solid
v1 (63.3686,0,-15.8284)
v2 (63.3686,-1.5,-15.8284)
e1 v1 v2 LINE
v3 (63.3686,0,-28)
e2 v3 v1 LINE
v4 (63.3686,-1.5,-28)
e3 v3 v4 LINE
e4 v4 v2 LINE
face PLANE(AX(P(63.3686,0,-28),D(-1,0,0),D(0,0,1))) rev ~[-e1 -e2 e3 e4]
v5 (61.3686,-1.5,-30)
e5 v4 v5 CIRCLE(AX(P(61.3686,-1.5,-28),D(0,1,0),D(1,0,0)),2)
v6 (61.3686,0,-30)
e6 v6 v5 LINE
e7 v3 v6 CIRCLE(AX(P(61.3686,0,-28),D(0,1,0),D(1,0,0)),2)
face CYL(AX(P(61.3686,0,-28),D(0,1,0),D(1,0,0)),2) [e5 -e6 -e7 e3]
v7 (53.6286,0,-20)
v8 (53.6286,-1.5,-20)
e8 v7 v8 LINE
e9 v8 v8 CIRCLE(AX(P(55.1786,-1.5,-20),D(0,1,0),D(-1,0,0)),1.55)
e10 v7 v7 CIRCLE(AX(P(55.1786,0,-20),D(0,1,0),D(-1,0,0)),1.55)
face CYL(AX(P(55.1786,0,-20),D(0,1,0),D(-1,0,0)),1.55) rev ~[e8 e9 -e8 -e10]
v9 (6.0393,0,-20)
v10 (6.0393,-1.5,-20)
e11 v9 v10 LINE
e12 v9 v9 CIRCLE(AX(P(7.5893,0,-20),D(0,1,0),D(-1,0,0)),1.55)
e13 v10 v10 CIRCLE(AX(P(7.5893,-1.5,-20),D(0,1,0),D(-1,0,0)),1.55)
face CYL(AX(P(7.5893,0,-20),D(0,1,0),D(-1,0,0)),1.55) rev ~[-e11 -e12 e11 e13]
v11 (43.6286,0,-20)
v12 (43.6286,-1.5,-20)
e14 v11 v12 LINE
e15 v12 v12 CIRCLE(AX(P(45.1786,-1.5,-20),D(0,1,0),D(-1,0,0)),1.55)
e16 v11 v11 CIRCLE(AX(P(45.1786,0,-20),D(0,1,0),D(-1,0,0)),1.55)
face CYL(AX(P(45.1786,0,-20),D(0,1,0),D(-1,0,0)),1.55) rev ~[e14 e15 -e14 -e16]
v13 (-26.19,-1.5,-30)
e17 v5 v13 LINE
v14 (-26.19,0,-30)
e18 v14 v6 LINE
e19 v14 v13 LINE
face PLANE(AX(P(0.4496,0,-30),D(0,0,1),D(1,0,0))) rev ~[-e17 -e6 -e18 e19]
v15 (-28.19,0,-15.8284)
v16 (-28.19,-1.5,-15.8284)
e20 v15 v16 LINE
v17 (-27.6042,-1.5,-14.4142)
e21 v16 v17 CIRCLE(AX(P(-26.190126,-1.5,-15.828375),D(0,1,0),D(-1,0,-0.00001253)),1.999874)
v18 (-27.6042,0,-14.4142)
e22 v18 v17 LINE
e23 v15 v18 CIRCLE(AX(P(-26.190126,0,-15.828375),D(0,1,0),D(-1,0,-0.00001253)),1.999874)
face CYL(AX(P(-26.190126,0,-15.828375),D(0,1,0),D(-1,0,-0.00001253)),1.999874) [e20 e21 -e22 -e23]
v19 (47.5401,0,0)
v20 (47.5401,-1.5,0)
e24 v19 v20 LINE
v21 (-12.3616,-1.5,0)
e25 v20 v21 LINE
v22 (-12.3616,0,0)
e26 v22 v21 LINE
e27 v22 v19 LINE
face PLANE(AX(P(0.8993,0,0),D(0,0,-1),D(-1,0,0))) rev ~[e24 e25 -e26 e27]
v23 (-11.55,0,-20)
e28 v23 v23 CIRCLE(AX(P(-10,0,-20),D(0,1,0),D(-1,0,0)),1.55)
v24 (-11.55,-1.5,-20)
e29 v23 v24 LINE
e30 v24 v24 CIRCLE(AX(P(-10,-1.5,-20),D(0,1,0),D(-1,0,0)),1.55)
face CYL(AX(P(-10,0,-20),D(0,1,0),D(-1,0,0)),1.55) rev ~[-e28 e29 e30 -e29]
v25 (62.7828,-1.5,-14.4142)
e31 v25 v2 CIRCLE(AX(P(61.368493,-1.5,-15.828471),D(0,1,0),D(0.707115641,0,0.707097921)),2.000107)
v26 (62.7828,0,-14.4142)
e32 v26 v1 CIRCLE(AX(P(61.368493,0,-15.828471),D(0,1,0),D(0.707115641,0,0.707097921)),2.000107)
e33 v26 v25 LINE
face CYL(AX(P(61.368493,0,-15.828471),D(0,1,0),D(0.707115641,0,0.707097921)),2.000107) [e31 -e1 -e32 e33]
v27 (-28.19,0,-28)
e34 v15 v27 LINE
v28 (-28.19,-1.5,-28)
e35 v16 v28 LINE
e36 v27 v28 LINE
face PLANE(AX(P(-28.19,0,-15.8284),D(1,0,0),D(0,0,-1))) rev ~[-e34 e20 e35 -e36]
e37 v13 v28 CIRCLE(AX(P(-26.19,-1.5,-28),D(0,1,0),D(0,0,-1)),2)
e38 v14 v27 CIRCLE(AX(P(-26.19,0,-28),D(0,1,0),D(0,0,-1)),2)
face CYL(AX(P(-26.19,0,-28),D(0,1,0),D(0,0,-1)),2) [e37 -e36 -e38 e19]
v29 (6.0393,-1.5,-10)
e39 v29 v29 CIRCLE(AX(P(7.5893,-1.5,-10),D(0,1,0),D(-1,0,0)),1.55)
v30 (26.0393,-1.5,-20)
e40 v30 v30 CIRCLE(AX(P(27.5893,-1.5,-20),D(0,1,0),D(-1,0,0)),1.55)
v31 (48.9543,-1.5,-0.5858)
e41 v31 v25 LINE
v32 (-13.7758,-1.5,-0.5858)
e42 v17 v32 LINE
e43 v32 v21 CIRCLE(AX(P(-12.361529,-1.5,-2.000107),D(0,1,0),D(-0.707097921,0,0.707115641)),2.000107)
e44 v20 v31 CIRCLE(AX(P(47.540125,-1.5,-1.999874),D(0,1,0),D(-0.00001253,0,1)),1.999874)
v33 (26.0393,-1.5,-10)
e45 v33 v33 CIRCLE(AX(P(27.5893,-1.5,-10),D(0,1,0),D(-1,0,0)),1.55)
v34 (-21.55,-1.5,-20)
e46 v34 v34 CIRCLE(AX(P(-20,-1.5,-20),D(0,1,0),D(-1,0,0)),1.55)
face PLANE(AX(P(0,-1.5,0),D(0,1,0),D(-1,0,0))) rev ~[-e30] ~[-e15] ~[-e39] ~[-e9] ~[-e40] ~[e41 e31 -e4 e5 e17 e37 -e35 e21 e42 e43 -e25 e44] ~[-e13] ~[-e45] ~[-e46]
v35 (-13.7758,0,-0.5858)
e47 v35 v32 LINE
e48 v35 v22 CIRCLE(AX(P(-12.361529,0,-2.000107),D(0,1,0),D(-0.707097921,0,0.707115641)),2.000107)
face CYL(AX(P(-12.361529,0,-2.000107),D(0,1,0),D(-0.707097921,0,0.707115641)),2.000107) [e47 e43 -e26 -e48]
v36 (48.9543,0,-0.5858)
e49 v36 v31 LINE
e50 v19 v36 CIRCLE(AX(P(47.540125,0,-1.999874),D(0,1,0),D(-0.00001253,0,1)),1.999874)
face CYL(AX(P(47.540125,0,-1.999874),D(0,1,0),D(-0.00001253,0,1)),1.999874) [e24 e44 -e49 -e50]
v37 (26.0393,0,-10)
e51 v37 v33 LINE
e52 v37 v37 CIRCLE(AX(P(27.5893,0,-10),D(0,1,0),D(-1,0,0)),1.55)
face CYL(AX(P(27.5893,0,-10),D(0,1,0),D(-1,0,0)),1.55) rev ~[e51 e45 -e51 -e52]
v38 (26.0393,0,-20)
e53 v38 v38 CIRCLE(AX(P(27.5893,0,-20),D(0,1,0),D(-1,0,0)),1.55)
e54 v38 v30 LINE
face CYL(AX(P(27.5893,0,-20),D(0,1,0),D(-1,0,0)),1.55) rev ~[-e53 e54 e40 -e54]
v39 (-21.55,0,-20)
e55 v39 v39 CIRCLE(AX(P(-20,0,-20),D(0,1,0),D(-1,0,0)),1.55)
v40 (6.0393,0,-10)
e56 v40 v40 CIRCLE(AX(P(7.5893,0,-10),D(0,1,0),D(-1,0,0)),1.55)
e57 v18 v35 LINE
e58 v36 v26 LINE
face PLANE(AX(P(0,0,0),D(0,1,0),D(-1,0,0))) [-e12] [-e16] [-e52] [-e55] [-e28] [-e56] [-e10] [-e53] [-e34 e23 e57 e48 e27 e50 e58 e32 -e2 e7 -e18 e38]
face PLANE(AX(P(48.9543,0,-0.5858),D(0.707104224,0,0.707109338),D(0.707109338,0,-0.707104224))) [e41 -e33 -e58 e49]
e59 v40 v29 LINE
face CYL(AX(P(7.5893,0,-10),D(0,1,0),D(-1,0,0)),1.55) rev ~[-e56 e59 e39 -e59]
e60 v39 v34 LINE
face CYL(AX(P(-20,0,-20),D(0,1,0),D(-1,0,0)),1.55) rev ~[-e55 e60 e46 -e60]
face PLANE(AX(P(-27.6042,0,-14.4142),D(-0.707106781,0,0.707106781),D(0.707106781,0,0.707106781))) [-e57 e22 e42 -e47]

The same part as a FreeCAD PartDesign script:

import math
import FreeCAD as App
import Part
import Sketcher
Q = App.Units.Quantity

doc = App.newDocument("Part")
body = doc.addObject("PartDesign::Body", "Body")

sketch1 = doc.addObject("Sketcher::SketchObject", "Sketch")
body.addObject(sketch1)
sketch1.AttachmentSupport = (doc.XZ_Plane, [""])
sketch1.MapMode = "FlatFace"
sketch1.addGeometry(Part.ArcOfCircle(Part.Circle(App.Vector(-26.2, -28, 0), App.Vector(0, 0, 1), 2), math.radians(180), math.radians(270)), False)
sketch1.addGeometry(Part.LineSegment(App.Vector(-28.2, -28, 0), App.Vector(-28.2, -15.8, 0)), False)
sketch1.addGeometry(Part.ArcOfCircle(Part.Circle(App.Vector(-26.2, -15.8, 0), App.Vector(0, 0, 1), 2), math.radians(135), math.radians(180)), False)
sketch1.addGeometry(Part.LineSegment(App.Vector(-27.6, -14.4, 0), App.Vector(-13.8, -0.6, 0)), False)
sketch1.addGeometry(Part.ArcOfCircle(Part.Circle(App.Vector(-12.4, -2, 0), App.Vector(0, 0, 1), 2), math.radians(90), math.radians(135)), False)
sketch1.addGeometry(Part.LineSegment(App.Vector(-12.4, 0, 0), App.Vector(47.5, 0, 0)), False)
sketch1.addGeometry(Part.ArcOfCircle(Part.Circle(App.Vector(47.5, -2, 0), App.Vector(0, 0, 1), 2), math.radians(45), math.radians(90)), False)
sketch1.addGeometry(Part.LineSegment(App.Vector(49, -0.6, 0), App.Vector(62.8, -14.4, 0)), False)
sketch1.addGeometry(Part.ArcOfCircle(Part.Circle(App.Vector(61.4, -15.8, 0), App.Vector(0, 0, 1), 2), math.radians(0), math.radians(45)), False)
sketch1.addGeometry(Part.LineSegment(App.Vector(63.4, -15.8, 0), App.Vector(63.4, -28, 0)), False)
sketch1.addGeometry(Part.ArcOfCircle(Part.Circle(App.Vector(61.4, -28, 0), App.Vector(0, 0, 1), 2), math.radians(-90), math.radians(0)), False)
sketch1.addGeometry(Part.LineSegment(App.Vector(61.4, -30, 0), App.Vector(-26.2, -30, 0)), False)
sketch1.addGeometry(Part.Circle(App.Vector(7.6, -10, 0), App.Vector(0, 0, 1), 1.6), False)
sketch1.addGeometry(Part.Circle(App.Vector(27.6, -20, 0), App.Vector(0, 0, 1), 1.6), False)
sketch1.addGeometry(Part.Circle(App.Vector(7.6, -20, 0), App.Vector(0, 0, 1), 1.6), False)
sketch1.addGeometry(Part.Circle(App.Vector(27.6, -10, 0), App.Vector(0, 0, 1), 1.6), False)
sketch1.addGeometry(Part.Circle(App.Vector(-20, -20, 0), App.Vector(0, 0, 1), 1.6), False)
sketch1.addGeometry(Part.Circle(App.Vector(-10, -20, 0), App.Vector(0, 0, 1), 1.6), False)
sketch1.addGeometry(Part.Circle(App.Vector(45.2, -20, 0), App.Vector(0, 0, 1), 1.6), False)
sketch1.addGeometry(Part.Circle(App.Vector(55.2, -20, 0), App.Vector(0, 0, 1), 1.6), False)
sketch1.addConstraint(Sketcher.Constraint("Tangent", 0, 1, 1, 1))
sketch1.addConstraint(Sketcher.Constraint("Tangent", 1, 2, 2, 2))
sketch1.addConstraint(Sketcher.Constraint("Tangent", 2, 1, 3, 1))
sketch1.addConstraint(Sketcher.Constraint("Tangent", 3, 2, 4, 2))
sketch1.addConstraint(Sketcher.Constraint("Tangent", 4, 1, 5, 1))
sketch1.addConstraint(Sketcher.Constraint("Tangent", 5, 2, 6, 2))
sketch1.addConstraint(Sketcher.Constraint("Tangent", 6, 1, 7, 1))
sketch1.addConstraint(Sketcher.Constraint("Tangent", 7, 2, 8, 2))
sketch1.addConstraint(Sketcher.Constraint("Tangent", 8, 1, 9, 1))
sketch1.addConstraint(Sketcher.Constraint("Tangent", 9, 2, 10, 2))
sketch1.addConstraint(Sketcher.Constraint("Tangent", 10, 1, 11, 1))
sketch1.addConstraint(Sketcher.Constraint("Tangent", 11, 2, 0, 2))
sketch1.addConstraint(Sketcher.Constraint("Vertical", 1))
sketch1.addConstraint(Sketcher.Constraint("Horizontal", 5))
sketch1.addConstraint(Sketcher.Constraint("Vertical", 9))
sketch1.addConstraint(Sketcher.Constraint("Horizontal", 11))
sketch1.addConstraint(Sketcher.Constraint("Equal", 0, 2))
sketch1.addConstraint(Sketcher.Constraint("Equal", 2, 4))
sketch1.addConstraint(Sketcher.Constraint("Equal", 4, 6))
sketch1.addConstraint(Sketcher.Constraint("Equal", 6, 8))
sketch1.addConstraint(Sketcher.Constraint("Equal", 8, 10))
sketch1.addConstraint(Sketcher.Constraint("Equal", 12, 13))
sketch1.addConstraint(Sketcher.Constraint("Equal", 13, 14))
sketch1.addConstraint(Sketcher.Constraint("Equal", 14, 15))
sketch1.addConstraint(Sketcher.Constraint("Equal", 15, 16))
sketch1.addConstraint(Sketcher.Constraint("Equal", 16, 17))
sketch1.addConstraint(Sketcher.Constraint("Equal", 17, 18))
sketch1.addConstraint(Sketcher.Constraint("Equal", 18, 19))
sketch1.addConstraint(Sketcher.Constraint("PointOnObject", 4, 1, -1))
sketch1.addConstraint(Sketcher.Constraint("Perpendicular", 3, 7))
sketch1.addConstraint(Sketcher.Constraint("Horizontal", 2, 3, 8, 3))
sketch1.addConstraint(Sketcher.Constraint("Horizontal", 13, 3, 14, 3))
sketch1.addConstraint(Sketcher.Constraint("Horizontal", 12, 3, 15, 3))
sketch1.addConstraint(Sketcher.Constraint("Horizontal", 14, 3, 16, 3))
sketch1.addConstraint(Sketcher.Constraint("Horizontal", 16, 3, 17, 3))
sketch1.addConstraint(Sketcher.Constraint("Horizontal", 17, 3, 18, 3))
sketch1.addConstraint(Sketcher.Constraint("Horizontal", 18, 3, 19, 3))
sketch1.addConstraint(Sketcher.Constraint("Horizontal", 3, 2, 6, 1))
sketch1.addConstraint(Sketcher.Constraint("Vertical", 12, 3, 14, 3))
sketch1.addConstraint(Sketcher.Constraint("Vertical", 13, 3, 15, 3))
sketch1.addConstraint(Sketcher.Constraint("Radius", 0, Q("2 mm")))
sketch1.addConstraint(Sketcher.Constraint("Diameter", 12, Q("3.1 mm")))
sketch1.addConstraint(Sketcher.Constraint("DistanceY", 0, 3, -1, 1, Q("28 mm")))
sketch1.addConstraint(Sketcher.Constraint("DistanceY", 12, 3, -1, 1, Q("10 mm")))
sketch1.addConstraint(Sketcher.Constraint("DistanceY", 13, 3, -1, 1, Q("20 mm")))
sketch1.addConstraint(Sketcher.Constraint("DistanceX", 16, 3, -1, 1, Q("20 mm")))
sketch1.addConstraint(Sketcher.Constraint("DistanceX", 17, 3, -1, 1, Q("10 mm")))
sketch1.addConstraint(Sketcher.Constraint("DistanceX", 12, 3, 13, 3, Q("20 mm")))
sketch1.addConstraint(Sketcher.Constraint("DistanceX", 18, 3, 19, 3, Q("10 mm")))
sketch1.addConstraint(Sketcher.Constraint("DistanceX", 0, 3, -1, 1, Q("26.19 mm")))
sketch1.addConstraint(Sketcher.Constraint("DistanceX", -1, 1, 6, 3, Q("47.54 mm")))
sketch1.addConstraint(Sketcher.Constraint("DistanceX", 18, 3, 8, 3, Q("16.19 mm")))
sketch1.addConstraint(Sketcher.Constraint("DistanceX", 5, 1, 5, 2, Q("59.9017 mm")))
sketch1.addConstraint(Sketcher.Constraint("DistanceX", 4, 3, 12, 3, Q("19.951 mm")))
pad1 = doc.addObject("PartDesign::Pad", "Pad")
body.addObject(pad1)
pad1.Profile = sketch1
pad1.Length = 1.5

doc.recompute()
